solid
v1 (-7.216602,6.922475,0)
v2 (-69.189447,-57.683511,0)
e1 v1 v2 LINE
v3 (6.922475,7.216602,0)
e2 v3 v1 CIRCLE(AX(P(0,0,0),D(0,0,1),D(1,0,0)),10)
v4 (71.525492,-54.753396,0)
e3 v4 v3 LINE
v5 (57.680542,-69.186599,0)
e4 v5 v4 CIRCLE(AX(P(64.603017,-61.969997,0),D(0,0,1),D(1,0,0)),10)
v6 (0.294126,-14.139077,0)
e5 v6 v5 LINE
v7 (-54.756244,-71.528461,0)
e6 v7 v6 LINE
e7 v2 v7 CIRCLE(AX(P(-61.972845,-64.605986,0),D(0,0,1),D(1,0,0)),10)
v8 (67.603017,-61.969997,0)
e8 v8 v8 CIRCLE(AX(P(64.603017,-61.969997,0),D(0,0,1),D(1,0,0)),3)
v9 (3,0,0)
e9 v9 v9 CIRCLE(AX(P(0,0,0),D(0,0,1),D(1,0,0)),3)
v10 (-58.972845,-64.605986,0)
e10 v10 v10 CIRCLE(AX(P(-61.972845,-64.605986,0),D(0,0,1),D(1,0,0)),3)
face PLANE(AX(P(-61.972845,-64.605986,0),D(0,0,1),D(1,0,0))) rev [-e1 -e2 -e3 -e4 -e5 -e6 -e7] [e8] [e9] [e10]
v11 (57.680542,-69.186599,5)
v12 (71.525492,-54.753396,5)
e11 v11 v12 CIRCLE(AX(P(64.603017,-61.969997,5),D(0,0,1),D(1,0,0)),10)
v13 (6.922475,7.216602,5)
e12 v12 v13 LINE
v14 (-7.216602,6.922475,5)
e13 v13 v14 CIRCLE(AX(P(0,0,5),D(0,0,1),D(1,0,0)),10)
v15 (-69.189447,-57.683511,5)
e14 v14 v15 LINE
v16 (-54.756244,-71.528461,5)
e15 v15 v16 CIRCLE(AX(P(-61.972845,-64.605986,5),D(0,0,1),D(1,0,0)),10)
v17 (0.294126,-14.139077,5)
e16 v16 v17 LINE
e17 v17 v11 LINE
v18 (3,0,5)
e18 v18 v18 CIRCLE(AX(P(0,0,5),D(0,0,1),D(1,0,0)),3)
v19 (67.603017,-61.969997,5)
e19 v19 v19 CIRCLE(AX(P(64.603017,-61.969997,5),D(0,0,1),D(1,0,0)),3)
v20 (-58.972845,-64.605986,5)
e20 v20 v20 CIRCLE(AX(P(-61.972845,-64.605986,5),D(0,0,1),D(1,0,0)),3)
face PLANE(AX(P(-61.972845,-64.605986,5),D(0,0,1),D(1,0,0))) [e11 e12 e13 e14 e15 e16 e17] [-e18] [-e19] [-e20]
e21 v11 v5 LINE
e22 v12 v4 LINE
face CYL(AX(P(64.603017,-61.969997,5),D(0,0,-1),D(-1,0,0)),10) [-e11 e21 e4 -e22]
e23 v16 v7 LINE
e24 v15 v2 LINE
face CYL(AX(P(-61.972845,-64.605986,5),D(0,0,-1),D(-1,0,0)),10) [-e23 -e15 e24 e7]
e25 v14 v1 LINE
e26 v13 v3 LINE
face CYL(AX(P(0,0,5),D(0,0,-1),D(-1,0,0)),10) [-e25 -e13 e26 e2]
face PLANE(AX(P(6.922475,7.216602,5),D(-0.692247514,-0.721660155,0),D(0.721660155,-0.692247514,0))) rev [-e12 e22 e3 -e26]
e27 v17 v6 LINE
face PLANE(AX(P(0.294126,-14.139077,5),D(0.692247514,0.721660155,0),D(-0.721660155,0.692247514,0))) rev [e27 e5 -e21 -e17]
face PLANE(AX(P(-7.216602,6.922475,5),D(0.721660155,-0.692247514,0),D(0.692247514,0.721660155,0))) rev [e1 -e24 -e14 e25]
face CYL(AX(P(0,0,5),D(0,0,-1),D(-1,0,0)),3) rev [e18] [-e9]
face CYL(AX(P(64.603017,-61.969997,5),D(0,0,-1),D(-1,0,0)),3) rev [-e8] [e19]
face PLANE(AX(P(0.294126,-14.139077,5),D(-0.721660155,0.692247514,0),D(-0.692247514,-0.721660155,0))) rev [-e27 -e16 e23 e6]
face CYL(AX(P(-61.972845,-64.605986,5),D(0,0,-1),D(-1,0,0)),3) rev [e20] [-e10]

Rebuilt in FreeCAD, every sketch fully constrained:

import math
import FreeCAD as App
import Part
import Sketcher

V = App.Vector
Q = App.Units.Quantity

doc = App.newDocument("Part")
params = doc.addObject("Spreadsheet::Sheet", "Params")
for row, (alias, value) in enumerate([
    ("sketch1_diameter", "6 mm"),
    ("sketch1_radius", "10 mm"),
    ("sketch1_length", "79.52 mm"),
    ("pad1_length", "5 mm"),
], start=1):
    params.set(f"A{row}", alias)
    params.set(f"B{row}", "=" + value)
    params.setAlias(f"B{row}", alias)

body = doc.addObject("PartDesign::Body", "Body")

sketch1 = body.newObject("Sketcher::SketchObject", "Sketch")
sketch1.AttachmentSupport = (doc.getObject("XY_Plane"), [""])
sketch1.MapMode = "FlatFace"
sketch1.addGeometry([
    Part.LineSegment(V(-54.8, -71.5, 0), V(0.3, -14.1, 0)),
    Part.LineSegment(V(0.3, -14.1, 0), V(57.7, -69.2, 0)),
    Part.ArcOfCircle(Part.Circle(V(64.6, -62, 0), V(0, 0, 1), 10), math.radians(-134), math.radians(46)),
    Part.LineSegment(V(71.5, -54.8, 0), V(6.9, 7.2, 0)),
    Part.ArcOfCircle(Part.Circle(V(0, 0, 0), V(0, 0, 1), 10), math.radians(46), math.radians(136)),
    Part.LineSegment(V(-7.2, 6.9, 0), V(-69.2, -57.7, 0)),
    Part.ArcOfCircle(Part.Circle(V(-62, -64.6, 0), V(0, 0, 1), 10), math.radians(136), math.radians(316)),
    Part.Circle(V(64.6, -62, 0), V(0, 0, 1), 3),
    Part.Circle(V(-62, -64.6, 0), V(0, 0, 1), 3),
    Part.Circle(V(0, 0, 0), V(0, 0, 1), 3),
], False)
sketch1.addConstraint([
    Sketcher.Constraint("Coincident", 0, 2, 1, 1),
    Sketcher.Constraint("Tangent", 1, 2, 2, 1),
    Sketcher.Constraint("Tangent", 2, 2, 3, 1),
    Sketcher.Constraint("Tangent", 3, 2, 4, 1),
    Sketcher.Constraint("Tangent", 4, 2, 5, 1),
    Sketcher.Constraint("Tangent", 5, 2, 6, 1),
    Sketcher.Constraint("Tangent", 6, 2, 0, 1),
    Sketcher.Constraint("Coincident", 4, 3, -1, 1),
    Sketcher.Constraint("Coincident", 9, 3, -1, 1),
    Sketcher.Constraint("Coincident", 7, 3, 2, 3),
    Sketcher.Constraint("Coincident", 8, 3, 6, 3),
    Sketcher.Constraint("Equal", 2, 4),
    Sketcher.Constraint("Equal", 4, 6),
    Sketcher.Constraint("Equal", 7, 8),
    Sketcher.Constraint("Equal", 8, 9),
    Sketcher.Constraint("Perpendicular", 0, 1),
    Sketcher.Constraint("Parallel", 1, 3),
    Sketcher.Constraint("Perpendicular", 3, 5),
    Sketcher.Constraint("Diameter", 7, Q("6 mm")),
    Sketcher.Constraint("Radius", 2, Q("10 mm")),
    Sketcher.Constraint("Distance", 1, Q("79.52 mm")),
    Sketcher.Constraint("DistanceY", 1, 2, -1, 1, Q("69.186599 mm")),
    Sketcher.Constraint("DistanceY", 5, 2, -1, 1, Q("57.683511 mm")),
])
sketch1.setExpression("Constraints[18]", "Params.sketch1_diameter")
sketch1.setExpression("Constraints[19]", "Params.sketch1_radius")
sketch1.setExpression("Constraints[20]", "Params.sketch1_length")
pad1 = body.newObject("PartDesign::Pad", "Pad")
pad1.Profile = sketch1
pad1.setExpression("Length", "Params.pad1_length")

doc.recompute()
